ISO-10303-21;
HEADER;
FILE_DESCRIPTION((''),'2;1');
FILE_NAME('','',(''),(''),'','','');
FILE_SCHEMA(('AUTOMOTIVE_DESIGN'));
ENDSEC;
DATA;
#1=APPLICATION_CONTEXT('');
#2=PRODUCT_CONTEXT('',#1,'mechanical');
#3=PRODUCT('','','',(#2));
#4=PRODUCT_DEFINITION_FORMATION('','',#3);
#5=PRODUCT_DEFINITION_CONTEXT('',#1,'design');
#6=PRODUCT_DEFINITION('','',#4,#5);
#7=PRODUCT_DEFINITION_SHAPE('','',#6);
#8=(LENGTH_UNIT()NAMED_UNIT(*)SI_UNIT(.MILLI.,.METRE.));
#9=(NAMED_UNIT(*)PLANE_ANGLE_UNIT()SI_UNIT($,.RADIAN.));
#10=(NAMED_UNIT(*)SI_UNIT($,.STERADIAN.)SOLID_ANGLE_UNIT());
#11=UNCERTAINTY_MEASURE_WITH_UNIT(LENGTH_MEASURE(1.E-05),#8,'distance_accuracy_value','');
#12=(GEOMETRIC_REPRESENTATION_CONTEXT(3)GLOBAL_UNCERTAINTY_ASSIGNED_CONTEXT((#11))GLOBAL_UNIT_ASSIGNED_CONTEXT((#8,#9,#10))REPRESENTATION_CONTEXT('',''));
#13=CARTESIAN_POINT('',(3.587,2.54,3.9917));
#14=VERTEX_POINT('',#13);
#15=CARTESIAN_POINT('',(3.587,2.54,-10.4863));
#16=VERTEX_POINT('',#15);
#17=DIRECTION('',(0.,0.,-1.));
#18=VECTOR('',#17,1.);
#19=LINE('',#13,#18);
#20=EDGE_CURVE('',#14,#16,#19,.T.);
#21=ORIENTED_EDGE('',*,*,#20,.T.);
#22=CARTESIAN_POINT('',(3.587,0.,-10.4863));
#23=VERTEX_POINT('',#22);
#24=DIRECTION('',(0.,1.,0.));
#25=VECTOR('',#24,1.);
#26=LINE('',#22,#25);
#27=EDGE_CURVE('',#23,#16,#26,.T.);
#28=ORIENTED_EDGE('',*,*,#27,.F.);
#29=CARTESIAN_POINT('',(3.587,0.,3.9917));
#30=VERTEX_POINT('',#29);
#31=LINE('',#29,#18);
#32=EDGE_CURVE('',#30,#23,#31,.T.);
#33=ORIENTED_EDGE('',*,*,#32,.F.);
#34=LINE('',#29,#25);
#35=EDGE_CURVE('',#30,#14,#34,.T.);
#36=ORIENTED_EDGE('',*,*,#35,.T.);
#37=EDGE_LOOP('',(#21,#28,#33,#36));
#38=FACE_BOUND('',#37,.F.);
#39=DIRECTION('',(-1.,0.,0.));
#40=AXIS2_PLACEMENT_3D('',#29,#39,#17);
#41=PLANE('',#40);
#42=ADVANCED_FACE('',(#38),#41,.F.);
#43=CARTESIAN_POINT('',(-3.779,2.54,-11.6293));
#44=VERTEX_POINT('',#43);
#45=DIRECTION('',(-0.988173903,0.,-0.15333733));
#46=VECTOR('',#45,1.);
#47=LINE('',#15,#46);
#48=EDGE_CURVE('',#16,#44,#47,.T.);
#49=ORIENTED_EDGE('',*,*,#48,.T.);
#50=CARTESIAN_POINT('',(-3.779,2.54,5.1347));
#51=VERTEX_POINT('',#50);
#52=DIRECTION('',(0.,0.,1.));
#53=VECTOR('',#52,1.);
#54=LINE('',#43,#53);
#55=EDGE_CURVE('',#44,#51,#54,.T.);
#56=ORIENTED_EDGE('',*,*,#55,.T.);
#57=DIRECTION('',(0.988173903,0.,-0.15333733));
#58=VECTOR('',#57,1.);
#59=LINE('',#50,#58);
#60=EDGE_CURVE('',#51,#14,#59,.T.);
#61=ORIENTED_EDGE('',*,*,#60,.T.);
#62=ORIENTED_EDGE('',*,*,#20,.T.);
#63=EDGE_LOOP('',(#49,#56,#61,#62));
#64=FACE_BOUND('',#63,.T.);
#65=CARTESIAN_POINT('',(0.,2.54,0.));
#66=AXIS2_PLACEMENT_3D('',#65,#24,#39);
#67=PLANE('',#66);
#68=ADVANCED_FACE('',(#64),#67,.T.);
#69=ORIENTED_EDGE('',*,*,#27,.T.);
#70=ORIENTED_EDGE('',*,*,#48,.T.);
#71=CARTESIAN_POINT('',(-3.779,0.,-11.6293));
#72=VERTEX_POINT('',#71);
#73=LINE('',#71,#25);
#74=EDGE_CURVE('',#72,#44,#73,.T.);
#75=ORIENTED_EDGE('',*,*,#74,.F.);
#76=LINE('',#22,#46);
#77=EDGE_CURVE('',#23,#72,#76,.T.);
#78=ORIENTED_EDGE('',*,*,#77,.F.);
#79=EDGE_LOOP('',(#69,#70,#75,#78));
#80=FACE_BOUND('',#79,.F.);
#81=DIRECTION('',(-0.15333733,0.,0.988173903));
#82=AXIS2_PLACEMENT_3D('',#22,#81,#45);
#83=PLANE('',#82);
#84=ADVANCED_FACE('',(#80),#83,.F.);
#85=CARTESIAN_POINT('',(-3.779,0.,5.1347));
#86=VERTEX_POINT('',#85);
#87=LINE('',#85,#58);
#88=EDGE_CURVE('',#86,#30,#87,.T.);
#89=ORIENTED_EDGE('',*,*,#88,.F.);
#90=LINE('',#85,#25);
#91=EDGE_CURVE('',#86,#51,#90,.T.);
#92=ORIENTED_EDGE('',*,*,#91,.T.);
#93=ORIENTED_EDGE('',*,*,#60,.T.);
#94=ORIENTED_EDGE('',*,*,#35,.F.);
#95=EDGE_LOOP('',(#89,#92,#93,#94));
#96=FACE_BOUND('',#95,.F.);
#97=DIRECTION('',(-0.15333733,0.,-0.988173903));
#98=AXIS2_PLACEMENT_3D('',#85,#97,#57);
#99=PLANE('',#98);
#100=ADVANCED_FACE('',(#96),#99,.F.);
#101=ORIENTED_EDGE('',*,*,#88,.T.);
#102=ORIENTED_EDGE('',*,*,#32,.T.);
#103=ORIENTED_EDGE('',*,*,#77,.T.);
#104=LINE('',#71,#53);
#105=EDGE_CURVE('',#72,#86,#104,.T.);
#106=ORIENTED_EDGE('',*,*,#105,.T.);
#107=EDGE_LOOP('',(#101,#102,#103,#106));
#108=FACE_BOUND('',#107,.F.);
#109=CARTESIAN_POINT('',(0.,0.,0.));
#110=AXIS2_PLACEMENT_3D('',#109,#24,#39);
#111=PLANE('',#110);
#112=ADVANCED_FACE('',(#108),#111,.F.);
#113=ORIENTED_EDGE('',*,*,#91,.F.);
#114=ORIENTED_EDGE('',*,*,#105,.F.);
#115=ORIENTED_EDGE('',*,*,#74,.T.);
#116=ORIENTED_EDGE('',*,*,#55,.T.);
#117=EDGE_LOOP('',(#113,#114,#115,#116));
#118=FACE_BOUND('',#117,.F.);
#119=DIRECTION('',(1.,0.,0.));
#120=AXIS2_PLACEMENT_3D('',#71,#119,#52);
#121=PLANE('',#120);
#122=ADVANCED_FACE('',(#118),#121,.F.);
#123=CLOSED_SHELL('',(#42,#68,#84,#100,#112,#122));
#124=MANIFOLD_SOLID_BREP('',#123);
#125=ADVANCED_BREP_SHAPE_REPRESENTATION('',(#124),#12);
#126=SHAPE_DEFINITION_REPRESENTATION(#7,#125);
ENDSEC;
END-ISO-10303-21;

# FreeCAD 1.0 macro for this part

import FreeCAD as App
import Part
import Sketcher

V = App.Vector
Q = App.Units.Quantity


def add_polygon(sketch, points):
    """Adds a closed chain of lines whose ends are joined by coincident constraints."""
    first, n = sketch.GeometryCount, len(points)
    for a, b in zip(points, points[1:] + points[:1]):
        sketch.addGeometry(Part.LineSegment(App.Vector(*a, 0), App.Vector(*b, 0)), False)
    for i in range(n):
        sketch.addConstraint(Sketcher.Constraint("Coincident", first + i, 2, first + (i + 1) % n, 1))

doc = App.newDocument("Part")
body = doc.addObject("PartDesign::Body", "Body")

sketch1 = body.newObject("Sketcher::SketchObject", "Sketch")
sketch1.AttachmentSupport = (doc.getObject("XZ_Plane"), [""])
sketch1.MapMode = "FlatFace"
add_polygon(sketch1, [(-4, 5), (4, 4), (4, -10), (-4, -12)])
sketch1.addConstraint([
    Sketcher.Constraint("Vertical", 1),
    Sketcher.Constraint("Vertical", 3),
    Sketcher.Constraint("Equal", 0, 2),
    Sketcher.Constraint("DistanceY", 1, 2, 1, 1, Q("0.57 in")),
    Sketcher.Constraint("DistanceY", 3, 1, 3, 2, Q("0.66 in")),
    Sketcher.Constraint("DistanceX", 2, 2, 1, 2, Q("0.29 in")),
    Sketcher.Constraint("DistanceX", -1, 1, 0, 2, 3.587),
    Sketcher.Constraint("DistanceY", -1, 1, 0, 2, 3.9917),
])
pad1 = body.newObject("PartDesign::Pad", "Pad")
pad1.Profile = sketch1
pad1.Length = Q("0.1 in")
pad1.Reversed = True

doc.recompute()
